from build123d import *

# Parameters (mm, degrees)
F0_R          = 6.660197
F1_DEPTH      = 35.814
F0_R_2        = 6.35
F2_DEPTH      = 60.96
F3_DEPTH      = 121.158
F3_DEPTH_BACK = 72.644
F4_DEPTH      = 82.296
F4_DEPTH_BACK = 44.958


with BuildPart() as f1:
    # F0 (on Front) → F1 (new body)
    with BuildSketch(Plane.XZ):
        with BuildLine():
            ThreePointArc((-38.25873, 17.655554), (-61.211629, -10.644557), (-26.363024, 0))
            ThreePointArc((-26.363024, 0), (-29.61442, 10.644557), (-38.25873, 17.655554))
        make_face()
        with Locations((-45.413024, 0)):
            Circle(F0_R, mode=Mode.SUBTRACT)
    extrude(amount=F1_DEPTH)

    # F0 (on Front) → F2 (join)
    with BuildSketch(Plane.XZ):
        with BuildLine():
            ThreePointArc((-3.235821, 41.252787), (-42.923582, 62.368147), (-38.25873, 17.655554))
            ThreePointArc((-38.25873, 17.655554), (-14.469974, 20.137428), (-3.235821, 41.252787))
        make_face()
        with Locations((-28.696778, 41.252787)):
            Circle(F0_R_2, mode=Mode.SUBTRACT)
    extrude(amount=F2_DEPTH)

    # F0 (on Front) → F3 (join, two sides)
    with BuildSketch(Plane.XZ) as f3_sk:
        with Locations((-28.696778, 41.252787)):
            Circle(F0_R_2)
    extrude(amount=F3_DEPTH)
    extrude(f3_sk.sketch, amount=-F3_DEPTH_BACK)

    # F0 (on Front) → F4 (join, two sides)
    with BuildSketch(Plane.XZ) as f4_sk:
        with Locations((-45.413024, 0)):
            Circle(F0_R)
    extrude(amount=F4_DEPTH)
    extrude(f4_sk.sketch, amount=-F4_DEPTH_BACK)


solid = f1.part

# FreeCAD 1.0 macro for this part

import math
import FreeCAD as App
import Part
import Sketcher
from FreeCAD import Vector
Q = App.Units.Quantity

doc = App.newDocument("Part")
body = doc.addObject("PartDesign::Body", "Body")
body.AllowCompound = True

sketch1 = body.newObject("Sketcher::SketchObject", "Sketch")
sketch1.AttachmentSupport = (doc.getObject("XZ_Plane"), [""])
sketch1.MapMode = "FlatFace"
sketch1.addGeometry(Part.ArcOfCircle(Part.Circle(Vector(-45, 0, 0), Vector(0, 0, 1), 19), math.radians(68), math.radians(360)), False)
sketch1.addGeometry(Part.ArcOfCircle(Part.Circle(Vector(-45, 0, 0), Vector(0, 0, 1), 19), math.radians(0), math.radians(68)), False)
sketch1.addGeometry(Part.Circle(Vector(-45, 0, 0), Vector(0, 0, 1), 7), False)
sketch1.addConstraint(Sketcher.Constraint("Tangent", 0, 1, 1, 2))
sketch1.addConstraint(Sketcher.Constraint("Coincident", 1, 1, 0, 2))
sketch1.addConstraint(Sketcher.Constraint("Coincident", 2, 3, 0, 3))
sketch1.addConstraint(Sketcher.Constraint("PointOnObject", 0, 3, -1))
sketch1.addConstraint(Sketcher.Constraint("PointOnObject", 1, 1, -1))
sketch1.addConstraint(Sketcher.Constraint("Radius", 0, Q("0.75 in")))
sketch1.addConstraint(Sketcher.Constraint("Diameter", 2, Q("13.320394 mm")))
sketch1.addConstraint(Sketcher.Constraint("DistanceX", 0, 1, -1, 1, Q("38.25873 mm")))
sketch1.addConstraint(Sketcher.Constraint("DistanceX", 0, 3, -1, 1, Q("45.413024 mm")))
pad1 = body.newObject("PartDesign::Pad", "Pad")
pad1.Profile = sketch1
pad1.Length = Q("1.41 in")

sketch2 = body.newObject("Sketcher::SketchObject", "Sketch001")
sketch2.AttachmentSupport = (doc.getObject("XZ_Plane"), [""])
sketch2.MapMode = "FlatFace"
sketch2.addGeometry(Part.ArcOfCircle(Part.Circle(Vector(-29, 41, 0), Vector(0, 0, 1), 25), math.radians(0), math.radians(248)), False)
sketch2.addGeometry(Part.ArcOfCircle(Part.Circle(Vector(-29, 41, 0), Vector(0, 0, 1), 25), math.radians(-112), math.radians(0)), False)
sketch2.addGeometry(Part.Circle(Vector(-29, 41, 0), Vector(0, 0, 1), 6), False)
sketch2.addConstraint(Sketcher.Constraint("Tangent", 0, 1, 1, 2))
sketch2.addConstraint(Sketcher.Constraint("Coincident", 1, 1, 0, 2))
sketch2.addConstraint(Sketcher.Constraint("Coincident", 2, 3, 0, 3))
sketch2.addConstraint(Sketcher.Constraint("Horizontal", 2, 3, 0, 1))
sketch2.addConstraint(Sketcher.Constraint("Diameter", 2, Q("0.5 in")))
sketch2.addConstraint(Sketcher.Constraint("Radius", 0, Q("1.0023999 in")))
sketch2.addConstraint(Sketcher.Constraint("DistanceX", 0, 3, -1, 1, Q("28.696778 mm")))
sketch2.addConstraint(Sketcher.Constraint("DistanceX", 1, 1, -1, 1, Q("38.25873 mm")))
sketch2.addConstraint(Sketcher.Constraint("DistanceY", -1, 1, 0, 3, Q("41.252788 mm")))
pad2 = body.newObject("PartDesign::Pad", "Pad001")
pad2.Profile = sketch2
pad2.Length = Q("2.4 in")

sketch3 = body.newObject("Sketcher::SketchObject", "Sketch002")
sketch3.AttachmentSupport = (doc.getObject("XZ_Plane"), [""])
sketch3.MapMode = "FlatFace"
sketch3.addGeometry(Part.Circle(Vector(-29, 41, 0), Vector(0, 0, 1), 6), False)
sketch3.addConstraint(Sketcher.Constraint("Diameter", 0, Q("0.5 in")))
sketch3.addConstraint(Sketcher.Constraint("DistanceX", 0, 3, -1, 1, Q("28.696778 mm")))
sketch3.addConstraint(Sketcher.Constraint("DistanceY", -1, 1, 0, 3, Q("41.252787 mm")))
pad3 = body.newObject("PartDesign::Pad", "Pad002")
pad3.Profile = sketch3
pad3.Type = "TwoLengths"
pad3.Length = Q("4.77 in")
pad3.Length2 = Q("2.86 in")

sketch4 = body.newObject("Sketcher::SketchObject", "Sketch003")
sketch4.AttachmentSupport = (doc.getObject("XZ_Plane"), [""])
sketch4.MapMode = "FlatFace"
sketch4.addGeometry(Part.Circle(Vector(-45, 0, 0), Vector(0, 0, 1), 7), False)
sketch4.addConstraint(Sketcher.Constraint("PointOnObject", 0, 3, -1))
sketch4.addConstraint(Sketcher.Constraint("Diameter", 0, Q("13.320394 mm")))
sketch4.addConstraint(Sketcher.Constraint("DistanceX", 0, 3, -1, 1, Q("45.413024 mm")))
pad4 = body.newObject("PartDesign::Pad", "Pad003")
pad4.Profile = sketch4
pad4.Type = "TwoLengths"
pad4.Length = Q("3.24 in")
pad4.Length2 = Q("1.77 in")

doc.recompute()
